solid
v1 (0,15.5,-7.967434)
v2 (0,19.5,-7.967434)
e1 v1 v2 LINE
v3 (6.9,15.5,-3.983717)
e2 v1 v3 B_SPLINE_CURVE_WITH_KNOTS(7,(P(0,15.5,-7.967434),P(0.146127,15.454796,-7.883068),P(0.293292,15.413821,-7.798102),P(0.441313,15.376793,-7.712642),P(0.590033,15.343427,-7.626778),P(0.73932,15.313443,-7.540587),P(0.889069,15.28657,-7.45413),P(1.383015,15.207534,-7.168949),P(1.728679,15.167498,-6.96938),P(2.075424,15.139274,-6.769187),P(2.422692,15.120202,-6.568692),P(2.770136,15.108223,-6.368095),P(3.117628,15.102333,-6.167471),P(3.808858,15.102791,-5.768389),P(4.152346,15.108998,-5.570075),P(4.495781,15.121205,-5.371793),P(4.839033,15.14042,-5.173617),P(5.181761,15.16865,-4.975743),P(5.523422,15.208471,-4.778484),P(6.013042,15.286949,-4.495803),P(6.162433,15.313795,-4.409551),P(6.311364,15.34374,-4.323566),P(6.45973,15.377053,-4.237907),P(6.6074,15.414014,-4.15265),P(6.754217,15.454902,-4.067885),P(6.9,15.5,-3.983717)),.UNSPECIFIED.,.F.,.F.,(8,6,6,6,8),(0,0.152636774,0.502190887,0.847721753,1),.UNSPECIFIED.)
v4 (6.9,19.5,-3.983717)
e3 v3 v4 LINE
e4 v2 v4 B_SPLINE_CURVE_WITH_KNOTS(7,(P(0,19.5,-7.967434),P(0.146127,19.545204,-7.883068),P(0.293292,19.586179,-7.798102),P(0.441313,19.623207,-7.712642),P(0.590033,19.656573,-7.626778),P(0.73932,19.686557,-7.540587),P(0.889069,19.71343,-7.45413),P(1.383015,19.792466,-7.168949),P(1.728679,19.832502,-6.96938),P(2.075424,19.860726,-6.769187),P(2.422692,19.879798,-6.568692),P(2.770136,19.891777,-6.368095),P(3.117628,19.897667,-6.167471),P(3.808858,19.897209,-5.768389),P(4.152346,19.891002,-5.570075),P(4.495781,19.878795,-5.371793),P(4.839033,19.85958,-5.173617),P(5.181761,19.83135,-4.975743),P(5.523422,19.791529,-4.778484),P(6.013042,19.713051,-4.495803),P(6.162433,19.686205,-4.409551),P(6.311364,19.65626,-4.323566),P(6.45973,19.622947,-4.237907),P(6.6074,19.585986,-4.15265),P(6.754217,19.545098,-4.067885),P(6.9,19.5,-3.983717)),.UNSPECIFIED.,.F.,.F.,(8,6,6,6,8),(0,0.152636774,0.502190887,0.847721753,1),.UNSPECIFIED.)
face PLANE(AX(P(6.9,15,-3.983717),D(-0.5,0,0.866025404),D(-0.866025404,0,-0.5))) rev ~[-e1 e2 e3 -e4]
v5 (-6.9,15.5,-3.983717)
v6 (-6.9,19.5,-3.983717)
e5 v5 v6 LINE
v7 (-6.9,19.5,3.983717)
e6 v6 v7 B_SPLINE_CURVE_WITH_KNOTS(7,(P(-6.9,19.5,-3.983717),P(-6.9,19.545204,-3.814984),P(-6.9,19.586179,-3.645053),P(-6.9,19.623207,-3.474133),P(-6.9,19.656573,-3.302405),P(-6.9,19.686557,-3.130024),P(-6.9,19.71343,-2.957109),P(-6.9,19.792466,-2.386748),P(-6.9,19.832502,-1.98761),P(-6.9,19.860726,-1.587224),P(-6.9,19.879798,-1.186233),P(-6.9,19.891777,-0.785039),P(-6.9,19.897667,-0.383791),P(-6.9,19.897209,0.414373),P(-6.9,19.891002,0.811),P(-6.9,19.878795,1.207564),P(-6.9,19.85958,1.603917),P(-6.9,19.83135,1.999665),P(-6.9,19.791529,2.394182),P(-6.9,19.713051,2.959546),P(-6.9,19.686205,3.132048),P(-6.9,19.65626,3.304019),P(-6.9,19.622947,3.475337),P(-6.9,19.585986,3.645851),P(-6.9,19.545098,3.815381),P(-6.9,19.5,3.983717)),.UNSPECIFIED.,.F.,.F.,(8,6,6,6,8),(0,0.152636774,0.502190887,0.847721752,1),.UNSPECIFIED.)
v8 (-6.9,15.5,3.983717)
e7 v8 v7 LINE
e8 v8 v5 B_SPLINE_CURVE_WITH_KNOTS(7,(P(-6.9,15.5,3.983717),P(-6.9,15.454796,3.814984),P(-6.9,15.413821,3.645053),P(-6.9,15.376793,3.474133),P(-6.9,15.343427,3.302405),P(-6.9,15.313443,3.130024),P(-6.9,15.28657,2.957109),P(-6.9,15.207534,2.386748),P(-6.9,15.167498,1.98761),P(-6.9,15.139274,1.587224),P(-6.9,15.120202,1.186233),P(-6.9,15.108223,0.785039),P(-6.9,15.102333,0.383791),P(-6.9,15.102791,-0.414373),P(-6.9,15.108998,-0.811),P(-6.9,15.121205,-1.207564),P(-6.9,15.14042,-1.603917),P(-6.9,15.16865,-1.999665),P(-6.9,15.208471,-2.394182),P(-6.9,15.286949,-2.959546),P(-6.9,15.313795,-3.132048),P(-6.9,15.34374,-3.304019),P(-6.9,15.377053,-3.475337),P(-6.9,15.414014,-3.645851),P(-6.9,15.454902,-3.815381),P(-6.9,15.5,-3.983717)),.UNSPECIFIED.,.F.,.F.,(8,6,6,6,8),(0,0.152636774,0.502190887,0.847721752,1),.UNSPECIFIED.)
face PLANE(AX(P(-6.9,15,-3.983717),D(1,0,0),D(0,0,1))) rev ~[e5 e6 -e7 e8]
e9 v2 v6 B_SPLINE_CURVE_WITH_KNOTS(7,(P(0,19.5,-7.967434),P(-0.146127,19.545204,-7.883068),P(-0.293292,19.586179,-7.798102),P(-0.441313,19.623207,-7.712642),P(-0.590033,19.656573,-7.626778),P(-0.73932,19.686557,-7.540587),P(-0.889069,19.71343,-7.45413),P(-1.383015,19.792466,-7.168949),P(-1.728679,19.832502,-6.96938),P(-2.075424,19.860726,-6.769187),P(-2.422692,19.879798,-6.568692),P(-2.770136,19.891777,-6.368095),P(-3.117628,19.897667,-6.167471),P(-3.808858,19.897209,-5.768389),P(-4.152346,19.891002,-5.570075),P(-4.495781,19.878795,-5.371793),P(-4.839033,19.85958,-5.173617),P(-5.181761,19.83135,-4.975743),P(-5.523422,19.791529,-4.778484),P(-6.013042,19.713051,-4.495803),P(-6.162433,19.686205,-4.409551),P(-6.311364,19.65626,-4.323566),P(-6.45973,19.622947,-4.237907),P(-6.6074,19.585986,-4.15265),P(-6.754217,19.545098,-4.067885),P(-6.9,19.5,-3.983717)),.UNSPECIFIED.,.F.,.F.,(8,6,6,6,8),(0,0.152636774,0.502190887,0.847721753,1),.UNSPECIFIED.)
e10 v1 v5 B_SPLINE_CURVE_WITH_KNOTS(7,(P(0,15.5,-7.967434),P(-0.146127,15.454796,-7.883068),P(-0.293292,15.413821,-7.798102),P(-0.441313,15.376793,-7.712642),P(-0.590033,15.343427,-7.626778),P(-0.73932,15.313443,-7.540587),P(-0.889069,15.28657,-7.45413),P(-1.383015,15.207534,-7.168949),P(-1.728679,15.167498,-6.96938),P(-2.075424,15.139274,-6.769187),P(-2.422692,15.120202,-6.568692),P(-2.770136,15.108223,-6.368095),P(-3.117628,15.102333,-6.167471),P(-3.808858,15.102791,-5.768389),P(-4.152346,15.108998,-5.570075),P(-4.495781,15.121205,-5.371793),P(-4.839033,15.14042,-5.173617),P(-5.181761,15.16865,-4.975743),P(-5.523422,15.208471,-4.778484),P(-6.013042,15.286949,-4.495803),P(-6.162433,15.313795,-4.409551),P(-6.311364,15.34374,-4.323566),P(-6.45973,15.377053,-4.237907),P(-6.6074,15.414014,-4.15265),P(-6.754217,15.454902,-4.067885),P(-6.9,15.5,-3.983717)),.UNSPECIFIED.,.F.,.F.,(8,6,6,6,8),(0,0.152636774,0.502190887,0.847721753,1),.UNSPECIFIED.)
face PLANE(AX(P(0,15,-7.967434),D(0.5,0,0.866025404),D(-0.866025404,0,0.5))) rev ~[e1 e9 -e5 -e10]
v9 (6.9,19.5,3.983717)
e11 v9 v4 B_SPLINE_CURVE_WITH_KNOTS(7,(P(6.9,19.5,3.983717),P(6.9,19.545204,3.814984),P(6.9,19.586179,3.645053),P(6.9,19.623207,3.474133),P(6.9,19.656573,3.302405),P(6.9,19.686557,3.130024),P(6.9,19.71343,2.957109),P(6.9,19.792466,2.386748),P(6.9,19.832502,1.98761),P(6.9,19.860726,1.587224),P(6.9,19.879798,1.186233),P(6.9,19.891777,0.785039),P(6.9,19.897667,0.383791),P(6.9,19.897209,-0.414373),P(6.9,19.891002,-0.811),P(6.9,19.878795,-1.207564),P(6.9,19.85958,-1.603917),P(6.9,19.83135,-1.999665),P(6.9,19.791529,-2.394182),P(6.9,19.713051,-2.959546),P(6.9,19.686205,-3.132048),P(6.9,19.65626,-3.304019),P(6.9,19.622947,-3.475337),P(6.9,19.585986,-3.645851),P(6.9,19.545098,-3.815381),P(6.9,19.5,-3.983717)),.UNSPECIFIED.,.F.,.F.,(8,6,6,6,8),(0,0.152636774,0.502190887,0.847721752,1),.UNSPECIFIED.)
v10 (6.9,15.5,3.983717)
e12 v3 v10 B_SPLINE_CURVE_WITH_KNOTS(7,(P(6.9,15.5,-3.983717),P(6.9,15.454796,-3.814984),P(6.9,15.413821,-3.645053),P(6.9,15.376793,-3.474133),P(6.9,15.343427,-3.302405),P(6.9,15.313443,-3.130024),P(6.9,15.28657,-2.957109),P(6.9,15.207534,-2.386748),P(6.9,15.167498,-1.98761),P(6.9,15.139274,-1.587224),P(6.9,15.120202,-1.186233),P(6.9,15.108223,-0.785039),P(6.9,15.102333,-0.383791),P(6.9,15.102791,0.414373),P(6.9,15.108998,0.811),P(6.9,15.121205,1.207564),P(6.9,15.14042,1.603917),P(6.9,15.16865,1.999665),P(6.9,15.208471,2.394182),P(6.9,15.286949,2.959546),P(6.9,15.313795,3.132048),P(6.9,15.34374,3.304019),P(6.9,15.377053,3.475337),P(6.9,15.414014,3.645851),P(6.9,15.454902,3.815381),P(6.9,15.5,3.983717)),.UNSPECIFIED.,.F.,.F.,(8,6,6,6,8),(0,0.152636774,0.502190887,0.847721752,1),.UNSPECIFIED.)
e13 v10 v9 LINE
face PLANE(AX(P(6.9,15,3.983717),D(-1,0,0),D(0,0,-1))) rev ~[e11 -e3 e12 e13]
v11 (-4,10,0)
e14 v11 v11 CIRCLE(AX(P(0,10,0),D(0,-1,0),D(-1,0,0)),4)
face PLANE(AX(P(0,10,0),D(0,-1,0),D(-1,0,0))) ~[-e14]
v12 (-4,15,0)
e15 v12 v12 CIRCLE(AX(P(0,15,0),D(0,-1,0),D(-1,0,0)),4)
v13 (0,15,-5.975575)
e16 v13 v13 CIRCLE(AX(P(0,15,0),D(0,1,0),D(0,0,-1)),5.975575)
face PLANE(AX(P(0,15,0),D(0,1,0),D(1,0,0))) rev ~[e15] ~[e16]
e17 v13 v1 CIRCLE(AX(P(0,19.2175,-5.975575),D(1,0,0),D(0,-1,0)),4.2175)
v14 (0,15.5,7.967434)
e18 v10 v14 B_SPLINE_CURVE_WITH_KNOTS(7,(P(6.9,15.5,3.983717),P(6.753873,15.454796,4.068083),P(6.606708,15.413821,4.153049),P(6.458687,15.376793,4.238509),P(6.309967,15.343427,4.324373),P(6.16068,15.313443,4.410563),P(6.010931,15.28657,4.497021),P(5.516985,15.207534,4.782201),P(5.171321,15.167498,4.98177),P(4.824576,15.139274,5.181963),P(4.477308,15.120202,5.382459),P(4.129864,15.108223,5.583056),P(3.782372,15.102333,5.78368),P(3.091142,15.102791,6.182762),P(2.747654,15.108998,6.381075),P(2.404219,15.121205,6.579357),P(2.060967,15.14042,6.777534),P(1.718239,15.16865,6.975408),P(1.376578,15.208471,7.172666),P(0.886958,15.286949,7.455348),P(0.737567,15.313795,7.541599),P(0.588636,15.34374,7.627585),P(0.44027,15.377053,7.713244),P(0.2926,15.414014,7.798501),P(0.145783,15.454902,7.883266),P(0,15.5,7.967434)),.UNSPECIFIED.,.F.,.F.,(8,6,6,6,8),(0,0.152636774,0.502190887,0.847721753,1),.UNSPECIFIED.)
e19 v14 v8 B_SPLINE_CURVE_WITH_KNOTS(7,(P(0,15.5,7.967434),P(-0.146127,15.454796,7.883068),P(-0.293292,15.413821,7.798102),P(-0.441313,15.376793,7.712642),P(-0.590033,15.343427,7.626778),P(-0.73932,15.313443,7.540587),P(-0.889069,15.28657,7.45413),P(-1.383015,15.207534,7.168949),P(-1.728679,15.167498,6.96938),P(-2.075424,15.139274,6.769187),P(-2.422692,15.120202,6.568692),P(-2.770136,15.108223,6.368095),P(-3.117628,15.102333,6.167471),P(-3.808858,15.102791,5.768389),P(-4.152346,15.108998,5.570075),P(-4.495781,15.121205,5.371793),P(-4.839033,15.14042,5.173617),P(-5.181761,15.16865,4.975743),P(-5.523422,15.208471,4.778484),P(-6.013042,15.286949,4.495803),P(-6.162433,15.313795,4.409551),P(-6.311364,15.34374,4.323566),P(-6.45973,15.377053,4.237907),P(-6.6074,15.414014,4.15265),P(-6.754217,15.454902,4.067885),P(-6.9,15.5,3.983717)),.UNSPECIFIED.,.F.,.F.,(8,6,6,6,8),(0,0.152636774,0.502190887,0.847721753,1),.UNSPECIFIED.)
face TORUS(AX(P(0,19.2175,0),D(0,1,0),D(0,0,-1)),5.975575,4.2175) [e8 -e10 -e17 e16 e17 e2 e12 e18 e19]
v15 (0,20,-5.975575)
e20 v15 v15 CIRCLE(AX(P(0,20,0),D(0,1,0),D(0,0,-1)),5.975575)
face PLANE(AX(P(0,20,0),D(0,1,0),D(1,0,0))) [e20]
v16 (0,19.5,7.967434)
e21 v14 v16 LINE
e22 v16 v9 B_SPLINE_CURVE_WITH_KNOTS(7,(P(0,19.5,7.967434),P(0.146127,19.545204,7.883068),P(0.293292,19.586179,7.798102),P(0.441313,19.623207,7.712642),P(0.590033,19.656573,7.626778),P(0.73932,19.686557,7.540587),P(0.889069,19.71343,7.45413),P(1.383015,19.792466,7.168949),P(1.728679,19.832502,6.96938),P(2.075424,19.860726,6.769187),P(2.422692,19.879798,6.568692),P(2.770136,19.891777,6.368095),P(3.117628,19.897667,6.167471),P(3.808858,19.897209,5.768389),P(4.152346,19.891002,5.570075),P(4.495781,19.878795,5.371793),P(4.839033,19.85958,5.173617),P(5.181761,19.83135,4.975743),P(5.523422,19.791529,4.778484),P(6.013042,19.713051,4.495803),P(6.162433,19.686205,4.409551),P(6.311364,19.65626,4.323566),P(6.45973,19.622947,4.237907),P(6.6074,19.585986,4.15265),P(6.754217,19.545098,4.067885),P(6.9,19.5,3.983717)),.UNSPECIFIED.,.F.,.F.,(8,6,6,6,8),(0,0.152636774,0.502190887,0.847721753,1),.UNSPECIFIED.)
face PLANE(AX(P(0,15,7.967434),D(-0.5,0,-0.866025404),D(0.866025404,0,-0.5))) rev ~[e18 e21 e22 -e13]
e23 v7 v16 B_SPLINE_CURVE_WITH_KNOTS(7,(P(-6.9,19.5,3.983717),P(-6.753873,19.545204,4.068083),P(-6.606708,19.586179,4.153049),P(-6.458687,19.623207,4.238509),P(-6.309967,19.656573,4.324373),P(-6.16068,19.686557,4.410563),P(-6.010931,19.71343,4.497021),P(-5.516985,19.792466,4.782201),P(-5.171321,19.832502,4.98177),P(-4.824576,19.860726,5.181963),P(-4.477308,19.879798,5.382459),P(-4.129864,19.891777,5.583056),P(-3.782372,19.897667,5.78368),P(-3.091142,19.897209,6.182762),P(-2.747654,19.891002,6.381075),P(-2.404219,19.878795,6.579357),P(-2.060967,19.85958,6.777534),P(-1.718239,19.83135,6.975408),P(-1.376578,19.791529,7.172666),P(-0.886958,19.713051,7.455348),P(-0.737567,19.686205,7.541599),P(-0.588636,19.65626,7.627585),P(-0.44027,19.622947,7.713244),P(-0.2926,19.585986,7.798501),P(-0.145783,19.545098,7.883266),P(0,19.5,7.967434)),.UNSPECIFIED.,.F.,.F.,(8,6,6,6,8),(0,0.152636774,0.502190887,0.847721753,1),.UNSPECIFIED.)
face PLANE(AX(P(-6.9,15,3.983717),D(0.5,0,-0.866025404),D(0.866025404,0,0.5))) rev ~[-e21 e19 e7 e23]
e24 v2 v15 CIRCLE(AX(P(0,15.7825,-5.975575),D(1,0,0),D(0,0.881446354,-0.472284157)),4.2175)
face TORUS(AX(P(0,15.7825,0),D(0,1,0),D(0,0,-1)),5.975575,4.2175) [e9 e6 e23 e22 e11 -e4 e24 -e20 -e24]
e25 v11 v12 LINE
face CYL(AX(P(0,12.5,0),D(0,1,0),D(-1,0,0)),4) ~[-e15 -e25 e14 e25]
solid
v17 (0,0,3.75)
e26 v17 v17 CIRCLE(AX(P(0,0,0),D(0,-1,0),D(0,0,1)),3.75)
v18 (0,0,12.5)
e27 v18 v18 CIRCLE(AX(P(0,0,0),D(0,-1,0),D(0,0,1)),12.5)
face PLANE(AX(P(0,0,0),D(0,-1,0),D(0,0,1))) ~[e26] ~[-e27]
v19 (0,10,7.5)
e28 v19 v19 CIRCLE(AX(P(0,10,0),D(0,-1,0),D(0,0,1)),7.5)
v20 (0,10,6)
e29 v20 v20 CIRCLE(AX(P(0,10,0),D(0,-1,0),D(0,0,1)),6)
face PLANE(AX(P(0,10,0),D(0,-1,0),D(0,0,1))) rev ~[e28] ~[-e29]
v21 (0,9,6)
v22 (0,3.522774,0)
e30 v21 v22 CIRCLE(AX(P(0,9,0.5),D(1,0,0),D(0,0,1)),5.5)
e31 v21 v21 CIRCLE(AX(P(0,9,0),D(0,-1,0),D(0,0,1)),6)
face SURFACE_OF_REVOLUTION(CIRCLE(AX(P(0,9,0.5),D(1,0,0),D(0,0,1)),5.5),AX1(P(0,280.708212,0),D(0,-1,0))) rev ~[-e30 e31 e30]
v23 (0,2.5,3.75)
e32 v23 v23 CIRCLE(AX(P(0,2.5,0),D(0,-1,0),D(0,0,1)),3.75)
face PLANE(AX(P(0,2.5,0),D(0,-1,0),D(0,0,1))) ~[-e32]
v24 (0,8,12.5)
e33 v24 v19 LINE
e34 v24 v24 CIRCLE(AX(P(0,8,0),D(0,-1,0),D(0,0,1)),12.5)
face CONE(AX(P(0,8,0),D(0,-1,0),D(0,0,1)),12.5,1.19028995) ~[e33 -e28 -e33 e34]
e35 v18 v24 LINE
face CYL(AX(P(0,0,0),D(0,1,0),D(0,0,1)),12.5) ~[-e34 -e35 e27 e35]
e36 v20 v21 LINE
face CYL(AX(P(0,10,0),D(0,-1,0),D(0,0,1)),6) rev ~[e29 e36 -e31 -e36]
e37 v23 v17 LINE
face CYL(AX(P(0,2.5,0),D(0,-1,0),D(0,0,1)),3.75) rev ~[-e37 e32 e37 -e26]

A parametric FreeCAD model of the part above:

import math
import FreeCAD as App
import Part
import Sketcher
from FreeCAD import Vector
Q = App.Units.Quantity


def add_polygon(sketch, points):
    """Adds a closed chain of lines whose ends are joined by coincident constraints."""
    first, n = sketch.GeometryCount, len(points)
    for a, b in zip(points, points[1:] + points[:1]):
        sketch.addGeometry(Part.LineSegment(App.Vector(*a, 0), App.Vector(*b, 0)), False)
    for i in range(n):
        sketch.addConstraint(Sketcher.Constraint("Coincident", first + i, 2, first + (i + 1) % n, 1))

doc = App.newDocument("Part")
params = doc.addObject("Spreadsheet::Sheet", "Params")
for row, (alias, value) in enumerate([
    ("sketch1_radius", "5.5 mm"),
    ("sketch1_height", "8 mm"),
    ("sketch1_height2", "1 mm"),
    ("sketch1_width", "1.5 mm"),
    ("sketch1_height3", "2.5 mm"),
    ("revolution_angle", "360 deg"),
    ("sketch2_width", "4 mm"),
    ("sketch2_height", "5 mm"),
    ("revolution2_angle", "360 deg"),
    ("pad1_length", "5 mm"),
    ("sketch4_width", "0.5 mm"),
    ("groove_angle", "360 deg"),
], start=1):
    params.set(f"A{row}", alias)
    params.set(f"B{row}", "=" + value)
    params.setAlias(f"B{row}", alias)

body = doc.addObject("PartDesign::Body", "Body")

# Sketch on XY plane
sketch1 = body.newObject("Sketcher::SketchObject", "Sketch")
sketch1.AttachmentSupport = (doc.getObject("XY_Plane"), [""])
sketch1.MapMode = "FlatFace"
sketch1.addGeometry(Part.LineSegment(Vector(12.5, 0, 0), Vector(12.5, 8, 0)), False)
sketch1.addGeometry(Part.LineSegment(Vector(12.5, 8, 0), Vector(7.5, 10, 0)), False)
sketch1.addGeometry(Part.LineSegment(Vector(7.5, 10, 0), Vector(6, 10, 0)), False)
sketch1.addGeometry(Part.LineSegment(Vector(6, 10, 0), Vector(6, 9, 0)), False)
sketch1.addGeometry(Part.ArcOfCircle(Part.Circle(Vector(0.5, 9, 0), Vector(0, 0, 1), 5.5), math.radians(-95), math.radians(0)), False)
sketch1.addGeometry(Part.LineSegment(Vector(0, 3.5, 0), Vector(0, 2.5, 0)), False)
sketch1.addGeometry(Part.LineSegment(Vector(0, 2.5, 0), Vector(3.8, 2.5, 0)), False)
sketch1.addGeometry(Part.LineSegment(Vector(3.8, 2.5, 0), Vector(3.8, 0, 0)), False)
sketch1.addGeometry(Part.LineSegment(Vector(3.8, 0, 0), Vector(12.5, 0, 0)), False)
sketch1.addConstraint(Sketcher.Constraint("Coincident", 0, 2, 1, 1))
sketch1.addConstraint(Sketcher.Constraint("Coincident", 1, 2, 2, 1))
sketch1.addConstraint(Sketcher.Constraint("Coincident", 2, 2, 3, 1))
sketch1.addConstraint(Sketcher.Constraint("Tangent", 3, 2, 4, 2))
sketch1.addConstraint(Sketcher.Constraint("Coincident", 4, 1, 5, 1))
sketch1.addConstraint(Sketcher.Constraint("Coincident", 5, 2, 6, 1))
sketch1.addConstraint(Sketcher.Constraint("Coincident", 6, 2, 7, 1))
sketch1.addConstraint(Sketcher.Constraint("Coincident", 7, 2, 8, 1))
sketch1.addConstraint(Sketcher.Constraint("Coincident", 8, 2, 0, 1))
sketch1.addConstraint(Sketcher.Constraint("Vertical", 0))
sketch1.addConstraint(Sketcher.Constraint("Horizontal", 2))
sketch1.addConstraint(Sketcher.Constraint("Vertical", 3))
sketch1.addConstraint(Sketcher.Constraint("Vertical", 5))
sketch1.addConstraint(Sketcher.Constraint("Horizontal", 6))
sketch1.addConstraint(Sketcher.Constraint("Vertical", 7))
sketch1.addConstraint(Sketcher.Constraint("Horizontal", 8))
sketch1.addConstraint(Sketcher.Constraint("PointOnObject", 4, 1, -2))
sketch1.addConstraint(Sketcher.Constraint("PointOnObject", 7, 2, -1))
sketch1.addConstraint(Sketcher.Constraint("Radius", 4, 5.5))
sketch1.addConstraint(Sketcher.Constraint("DistanceY", 0, 1, 0, 2, 8.0))
sketch1.addConstraint(Sketcher.Constraint("DistanceY", 3, 2, 3, 1, 1.0))
sketch1.addConstraint(Sketcher.Constraint("DistanceX", 2, 2, 2, 1, 1.5))
sketch1.addConstraint(Sketcher.Constraint("DistanceY", 7, 2, 7, 1, 2.5))
sketch1.addConstraint(Sketcher.Constraint("DistanceY", -1, 1, 4, 3, 9.0))
sketch1.addConstraint(Sketcher.Constraint("DistanceX", -1, 1, 2, 2, 6.0))
sketch1.addConstraint(Sketcher.Constraint("DistanceX", 4, 3, 0, 2, 12.0))
sketch1.addConstraint(Sketcher.Constraint("DistanceX", 6, 1, 6, 2, 3.75))
sketch1.setExpression("Constraints[18]", "Params.sketch1_radius")
sketch1.setExpression("Constraints[19]", "Params.sketch1_height")
sketch1.setExpression("Constraints[20]", "Params.sketch1_height2")
sketch1.setExpression("Constraints[21]", "Params.sketch1_width")
sketch1.setExpression("Constraints[22]", "Params.sketch1_height3")
revolution = body.newObject("PartDesign::Revolution", "Revolution")
revolution.Profile = sketch1
revolution.ReferenceAxis = (sketch1, ["V_Axis"])
revolution.setExpression("Angle", "Params.revolution_angle")
body2 = doc.addObject("PartDesign::Body", "Body001")

# Sketch on XY plane
sketch2 = body2.newObject("Sketcher::SketchObject", "Sketch001")
sketch2.AttachmentSupport = (doc.getObject("XY_Plane001"), [""])
sketch2.MapMode = "FlatFace"
add_polygon(sketch2, [(0, 15), (0, 10), (4, 10), (4, 15)])  # lines 0-3
sketch2.addConstraint(Sketcher.Constraint("Vertical", 0))
sketch2.addConstraint(Sketcher.Constraint("Horizontal", 1))
sketch2.addConstraint(Sketcher.Constraint("Vertical", 2))
sketch2.addConstraint(Sketcher.Constraint("Horizontal", 3))
sketch2.addConstraint(Sketcher.Constraint("PointOnObject", 0, 2, -2))
sketch2.addConstraint(Sketcher.Constraint("DistanceX", 1, 1, 1, 2, 4.0))
sketch2.addConstraint(Sketcher.Constraint("DistanceY", 0, 2, 0, 1, 5.0))
sketch2.addConstraint(Sketcher.Constraint("DistanceY", -1, 1, 0, 2, 10.0))
sketch2.setExpression("Constraints[9]", "Params.sketch2_width")
sketch2.setExpression("Constraints[10]", "Params.sketch2_height")
revolution2 = body2.newObject("PartDesign::Revolution", "Revolution001")
revolution2.Profile = sketch2
revolution2.ReferenceAxis = (sketch2, ["V_Axis"])
revolution2.setExpression("Angle", "Params.revolution2_angle")

# Sketch on XZ plane
sketch3 = body2.newObject("Sketcher::SketchObject", "Sketch002")
sketch3.AttachmentSupport = (doc.getObject("XZ_Plane001"), [""])
sketch3.MapMode = "FlatFace"
sketch3.AttachmentOffset = App.Placement(Vector(0, 0, -15), App.Rotation())
add_polygon(sketch3, [(0, -8), (-7, -4), (-7, 4), (0, 8), (7, 4), (7, -4)])  # lines 0-5
sketch3.addConstraint(Sketcher.Constraint("Vertical", 1))
sketch3.addConstraint(Sketcher.Constraint("Vertical", 4))
sketch3.addConstraint(Sketcher.Constraint("Symmetric", 0, 2, 3, 2, -1, 1))
sketch3.addConstraint(Sketcher.Constraint("Symmetric", 2, 2, 5, 2, -1, 1))
sketch3.addConstraint(Sketcher.Constraint("PointOnObject", 2, 2, -2))
sketch3.addConstraint(Sketcher.Constraint("Parallel", 2, 5))
sketch3.addConstraint(Sketcher.Constraint("Horizontal", 1, 2, 3, 2))
sketch3.addConstraint(Sketcher.Constraint("Angle", 0, Q("150 deg")))
sketch3.addConstraint(Sketcher.Constraint("DistanceX", 0, 2, -1, 1, 6.9))
sketch3.addConstraint(Sketcher.Constraint("DistanceY", 1, 1, 1, 2, 7.967434))
pad1 = body2.newObject("PartDesign::Pad", "Pad")
pad1.Profile = sketch3
pad1.setExpression("Length", "Params.pad1_length")
pad1.Reversed = True

# Sketch on YZ plane
sketch4 = body2.newObject("Sketcher::SketchObject", "Sketch003")
sketch4.AttachmentSupport = (doc.getObject("YZ_Plane001"), [""])
sketch4.MapMode = "FlatFace"
sketch4.addGeometry(Part.LineSegment(Vector(20, 8, 0), Vector(19.5, 8, 0)), False)
sketch4.addGeometry(Part.ArcOfCircle(Part.Circle(Vector(15.8, 6, 0), Vector(0, 0, 1), 4.2), math.radians(0), math.radians(28)), False)
sketch4.addGeometry(Part.LineSegment(Vector(20, 6, 0), Vector(20, 8, 0)), False)
sketch4.addGeometry(Part.LineSegment(Vector(15, 8, 0), Vector(15, 6, 0)), False)
sketch4.addGeometry(Part.ArcOfCircle(Part.Circle(Vector(19.2, 6, 0), Vector(0, 0, 1), 4.2), math.radians(152), math.radians(180)), False)
sketch4.addGeometry(Part.LineSegment(Vector(15.5, 8, 0), Vector(15, 8, 0)), False)
sketch4.addConstraint(Sketcher.Constraint("Coincident", 0, 2, 1, 2))
sketch4.addConstraint(Sketcher.Constraint("Tangent", 1, 1, 2, 1))
sketch4.addConstraint(Sketcher.Constraint("Coincident", 2, 2, 0, 1))
sketch4.addConstraint(Sketcher.Constraint("Tangent", 3, 2, 4, 2))
sketch4.addConstraint(Sketcher.Constraint("Coincident", 4, 1, 5, 1))
sketch4.addConstraint(Sketcher.Constraint("Coincident", 5, 2, 3, 1))
sketch4.addConstraint(Sketcher.Constraint("Horizontal", 0))
sketch4.addConstraint(Sketcher.Constraint("Vertical", 2))
sketch4.addConstraint(Sketcher.Constraint("Vertical", 3))
sketch4.addConstraint(Sketcher.Constraint("Horizontal", 5))
sketch4.addConstraint(Sketcher.Constraint("Equal", 1, 4))
sketch4.addConstraint(Sketcher.Constraint("Horizontal", 1, 3, 4, 3))
sketch4.addConstraint(Sketcher.Constraint("Horizontal", 2, 2, 4, 1))
sketch4.addConstraint(Sketcher.Constraint("DistanceX", 0, 2, 0, 1, 0.5))
sketch4.addConstraint(Sketcher.Constraint("DistanceX", -1, 1, 1, 1, 20.0))
sketch4.addConstraint(Sketcher.Constraint("DistanceX", -1, 1, 3, 2, 15.0))
sketch4.addConstraint(Sketcher.Constraint("Radius", 1, 4.2175))
sketch4.addConstraint(Sketcher.Constraint("DistanceY", -1, 1, 1, 3, 5.975575))
sketch4.setExpression("Constraints[13]", "Params.sketch4_width")
groove = body2.newObject("PartDesign::Groove", "Groove")
groove.Profile = sketch4
groove.ReferenceAxis = (sketch4, ["H_Axis"])
groove.setExpression("Angle", "Params.groove_angle")

doc.recompute()
